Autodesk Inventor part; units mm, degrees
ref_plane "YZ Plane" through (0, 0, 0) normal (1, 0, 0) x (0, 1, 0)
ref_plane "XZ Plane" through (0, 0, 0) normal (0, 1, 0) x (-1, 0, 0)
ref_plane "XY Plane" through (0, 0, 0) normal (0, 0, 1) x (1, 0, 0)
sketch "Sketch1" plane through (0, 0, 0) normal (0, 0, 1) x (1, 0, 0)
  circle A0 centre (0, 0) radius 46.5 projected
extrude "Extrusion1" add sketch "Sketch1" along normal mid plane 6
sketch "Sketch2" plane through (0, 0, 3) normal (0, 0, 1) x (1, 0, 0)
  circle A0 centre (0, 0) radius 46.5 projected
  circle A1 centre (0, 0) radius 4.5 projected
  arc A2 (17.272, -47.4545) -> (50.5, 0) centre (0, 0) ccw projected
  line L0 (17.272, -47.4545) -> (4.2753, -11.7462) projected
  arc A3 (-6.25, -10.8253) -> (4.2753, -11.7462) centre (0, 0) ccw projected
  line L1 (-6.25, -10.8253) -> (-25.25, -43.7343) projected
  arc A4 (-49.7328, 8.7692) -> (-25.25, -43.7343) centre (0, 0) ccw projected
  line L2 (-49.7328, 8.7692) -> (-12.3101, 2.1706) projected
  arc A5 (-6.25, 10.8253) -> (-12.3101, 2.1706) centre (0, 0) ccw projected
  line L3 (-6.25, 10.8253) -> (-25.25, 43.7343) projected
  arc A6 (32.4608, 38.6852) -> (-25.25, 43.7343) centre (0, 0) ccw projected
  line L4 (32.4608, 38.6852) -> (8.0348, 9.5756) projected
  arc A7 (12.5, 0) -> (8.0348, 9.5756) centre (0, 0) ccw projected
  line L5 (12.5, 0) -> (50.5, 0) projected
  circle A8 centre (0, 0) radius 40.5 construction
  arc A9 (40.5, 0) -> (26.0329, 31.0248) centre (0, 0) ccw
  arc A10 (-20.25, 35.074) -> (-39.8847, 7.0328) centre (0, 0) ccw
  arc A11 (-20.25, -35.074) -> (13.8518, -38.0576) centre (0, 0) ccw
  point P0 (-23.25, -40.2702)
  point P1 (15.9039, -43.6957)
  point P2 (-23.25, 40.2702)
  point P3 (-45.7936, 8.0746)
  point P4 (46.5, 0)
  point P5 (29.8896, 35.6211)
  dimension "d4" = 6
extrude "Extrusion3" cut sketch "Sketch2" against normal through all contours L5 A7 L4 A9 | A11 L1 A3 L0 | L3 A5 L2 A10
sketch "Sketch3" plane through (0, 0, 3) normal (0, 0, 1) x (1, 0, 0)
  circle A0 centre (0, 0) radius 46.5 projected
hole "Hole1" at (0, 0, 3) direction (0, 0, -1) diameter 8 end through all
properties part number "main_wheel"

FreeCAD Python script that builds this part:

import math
import FreeCAD as App
import Part
import Sketcher
Q = App.Units.Quantity

doc = App.newDocument("Part")
body = doc.addObject("PartDesign::Body", "Body")

# Sketch on XY plane
sketch1 = doc.addObject("Sketcher::SketchObject", "Sketch")
body.addObject(sketch1)
sketch1.AttachmentSupport = (doc.XY_Plane, [""])
sketch1.MapMode = "FlatFace"
sketch1.addGeometry(Part.Circle(App.Vector(0, 0, 0), App.Vector(0, 0, 1), 46.5), False)
sketch1.addConstraint([
    Sketcher.Constraint("Coincident", 0, 3, -1, 1),
    Sketcher.Constraint("Diameter", 0, 93.0),
])
pad1 = doc.addObject("PartDesign::Pad", "Pad")
body.addObject(pad1)
pad1.Profile = sketch1
pad1.Length = 6
pad1.Midplane = True

# Sketch on XY plane
sketch2 = doc.addObject("Sketcher::SketchObject", "Sketch001")
body.addObject(sketch2)
sketch2.AttachmentSupport = (doc.XY_Plane, [""])
sketch2.MapMode = "FlatFace"
sketch2.AttachmentOffset = App.Placement(App.Vector(0, 0, 3), App.Rotation())
sketch2.addGeometry([
    Part.LineSegment(App.Vector(12.5, 0, 0), App.Vector(40.5, 0, 0)),  # 0
    Part.ArcOfCircle(Part.Circle(App.Vector(0, 0, 0), App.Vector(0, 0, 1), 40.5), math.radians(0), math.radians(49.999998)),  # 1
    Part.LineSegment(App.Vector(26.032913, 31.024789, 0), App.Vector(8.0348, 9.5756, 0)),  # 2
    Part.ArcOfCircle(Part.Circle(App.Vector(0, 0, 0), App.Vector(0, 0, 1), 12.5), math.radians(0), math.radians(50.000289)),  # 3
    Part.ArcOfCircle(Part.Circle(App.Vector(0, 0, 0), App.Vector(0, 0, 1), 40.5), math.radians(-120.00002), math.radians(-70.000045)),  # 4
    Part.LineSegment(App.Vector(13.851821, -38.057592, 0), App.Vector(4.2753, -11.7462, 0)),  # 5
    Part.ArcOfCircle(Part.Circle(App.Vector(0, 0, 0), App.Vector(0, 0, 1), 12.5), math.radians(-120.00004), math.radians(-69.999859)),  # 6
    Part.LineSegment(App.Vector(-6.25, -10.8253, 0), App.Vector(-20.249984, -35.074009, 0)),  # 7
    Part.LineSegment(App.Vector(-6.25, 10.8253, 0), App.Vector(-20.249984, 35.074009, 0)),  # 8
    Part.ArcOfCircle(Part.Circle(App.Vector(0, 0, 0), App.Vector(0, 0, 1), 40.5), math.radians(120.00002), math.radians(169.999929)),  # 9
    Part.LineSegment(App.Vector(-39.884713, 7.032725, 0), App.Vector(-12.3101, 2.1706, 0)),  # 10
    Part.ArcOfCircle(Part.Circle(App.Vector(0, 0, 0), App.Vector(0, 0, 1), 12.5), math.radians(120.00004), math.radians(170.000012)),  # 11
], False)
sketch2.addConstraint([
    Sketcher.Constraint("Coincident", 0, 2, 1, 1),
    Sketcher.Constraint("Coincident", 1, 2, 2, 1),
    Sketcher.Constraint("Coincident", 2, 2, 3, 2),
    Sketcher.Constraint("Coincident", 3, 1, 0, 1),
    Sketcher.Constraint("Coincident", 4, 2, 5, 1),
    Sketcher.Constraint("Coincident", 5, 2, 6, 2),
    Sketcher.Constraint("Coincident", 6, 1, 7, 1),
    Sketcher.Constraint("Coincident", 7, 2, 4, 1),
    Sketcher.Constraint("Coincident", 8, 2, 9, 1),
    Sketcher.Constraint("Coincident", 9, 2, 10, 1),
    Sketcher.Constraint("Coincident", 10, 2, 11, 2),
    Sketcher.Constraint("Coincident", 11, 1, 8, 1),
    Sketcher.Constraint("Horizontal", 0),
    Sketcher.Constraint("Coincident", 1, 3, -1, 1),
    Sketcher.Constraint("Coincident", 3, 3, -1, 1),
    Sketcher.Constraint("Coincident", 4, 3, -1, 1),
    Sketcher.Constraint("Coincident", 6, 3, -1, 1),
    Sketcher.Constraint("Coincident", 9, 3, -1, 1),
    Sketcher.Constraint("Coincident", 11, 3, -1, 1),
    Sketcher.Constraint("Equal", 1, 4),
    Sketcher.Constraint("Equal", 3, 6),
    Sketcher.Constraint("Equal", 4, 9),
    Sketcher.Constraint("Equal", 6, 11),
    Sketcher.Constraint("PointOnObject", 0, 2, -1),
    Sketcher.Constraint("Vertical", 7, 2, 8, 2),
    Sketcher.Constraint("Vertical", 6, 1, 11, 1),
    Sketcher.Constraint("Radius", 1, 40.5),
    Sketcher.Constraint("Radius", 3, 12.5),
    Sketcher.Constraint("Angle", 2, Q("-130.0002 deg")),
    Sketcher.Constraint("Angle", 5, Q("110 deg")),
    Sketcher.Constraint("Angle", 7, Q("-120 deg")),
    Sketcher.Constraint("Angle", 10, Q("-10 deg")),
    Sketcher.Constraint("DistanceX", 6, 1, -1, 1, 6.25),
    Sketcher.Constraint("DistanceX", 10, 2, -1, 1, 12.31),
    Sketcher.Constraint("DistanceX", -1, 1, 1, 2, 26.033),
    Sketcher.Constraint("DistanceY", 5, 2, 6, 1, 0.921),
])
pocket1 = doc.addObject("PartDesign::Pocket", "Pocket")
body.addObject(pocket1)
pocket1.Profile = sketch2
pocket1.Type = "ThroughAll"

# Sketch on XY plane
sketch3 = doc.addObject("Sketcher::SketchObject", "Sketch002")
body.addObject(sketch3)
sketch3.AttachmentSupport = (doc.XY_Plane, [""])
sketch3.MapMode = "FlatFace"
sketch3.AttachmentOffset = App.Placement(App.Vector(0, 0, 3), App.Rotation())
sketch3.addGeometry(Part.Circle(App.Vector(0, 0, 0), App.Vector(0, 0, 1), 4), False)
sketch3.addConstraint([
    Sketcher.Constraint("Coincident", 0, 3, -1, 1),
    Sketcher.Constraint("Diameter", 0, 8.0),
])
doc.recompute()
hole = doc.addObject("PartDesign::Hole", "Hole")
body.addObject(hole)
hole.Profile = sketch3
hole.ThreadType = "None"
hole.Diameter = 8
hole.DepthType = "ThroughAll"

doc.recompute()
